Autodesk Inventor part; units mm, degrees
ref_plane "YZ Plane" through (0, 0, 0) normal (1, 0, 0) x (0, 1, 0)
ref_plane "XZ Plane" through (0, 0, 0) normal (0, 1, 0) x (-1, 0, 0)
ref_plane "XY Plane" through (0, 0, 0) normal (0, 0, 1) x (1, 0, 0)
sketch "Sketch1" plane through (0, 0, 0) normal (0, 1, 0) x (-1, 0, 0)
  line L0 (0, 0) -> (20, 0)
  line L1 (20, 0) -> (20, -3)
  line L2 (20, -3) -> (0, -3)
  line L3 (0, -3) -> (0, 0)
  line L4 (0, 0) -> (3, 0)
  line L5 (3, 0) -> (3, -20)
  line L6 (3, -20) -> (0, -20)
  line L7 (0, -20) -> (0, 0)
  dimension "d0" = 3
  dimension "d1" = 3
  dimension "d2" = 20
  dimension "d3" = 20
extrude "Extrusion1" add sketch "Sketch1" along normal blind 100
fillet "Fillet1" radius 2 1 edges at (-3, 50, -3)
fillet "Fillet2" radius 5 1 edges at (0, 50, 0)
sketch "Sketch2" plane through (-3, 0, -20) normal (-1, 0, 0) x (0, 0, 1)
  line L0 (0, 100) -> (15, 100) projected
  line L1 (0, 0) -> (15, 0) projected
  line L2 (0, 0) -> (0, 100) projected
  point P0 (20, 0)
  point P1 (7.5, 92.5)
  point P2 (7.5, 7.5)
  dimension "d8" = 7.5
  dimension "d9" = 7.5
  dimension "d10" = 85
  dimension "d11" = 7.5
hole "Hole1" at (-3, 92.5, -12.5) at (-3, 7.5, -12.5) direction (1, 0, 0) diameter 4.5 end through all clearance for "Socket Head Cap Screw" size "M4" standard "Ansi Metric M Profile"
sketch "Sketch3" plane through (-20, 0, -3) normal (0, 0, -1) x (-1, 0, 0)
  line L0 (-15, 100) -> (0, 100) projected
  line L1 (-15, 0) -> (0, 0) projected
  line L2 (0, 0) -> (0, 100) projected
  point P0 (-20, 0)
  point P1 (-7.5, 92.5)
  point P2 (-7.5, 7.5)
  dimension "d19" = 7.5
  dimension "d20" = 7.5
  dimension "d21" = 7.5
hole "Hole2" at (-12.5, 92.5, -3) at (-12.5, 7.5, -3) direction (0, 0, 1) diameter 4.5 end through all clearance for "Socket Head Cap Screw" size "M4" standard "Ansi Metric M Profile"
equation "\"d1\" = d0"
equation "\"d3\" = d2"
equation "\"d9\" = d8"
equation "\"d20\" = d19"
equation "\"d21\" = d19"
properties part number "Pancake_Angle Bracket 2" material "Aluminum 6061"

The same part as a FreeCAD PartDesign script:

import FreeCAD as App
import Part
import Sketcher

V = App.Vector
Q = App.Units.Quantity


def edges_at(feature, points):
    """Names of the edges that pass closest to the given points."""
    edges = feature.Shape.Edges
    near = lambda p: min(range(len(edges)), key=lambda i: edges[i].distToShape(Part.Vertex(*p))[0])
    return sorted({f"Edge{near(p) + 1}" for p in points})

doc = App.newDocument("Part")
body = doc.addObject("PartDesign::Body", "Body")

# Sketch on XZ plane
sketch1 = body.newObject("Sketcher::SketchObject", "Sketch")
sketch1.AttachmentSupport = (doc.getObject("XZ_Plane"), [""])
sketch1.MapMode = "FlatFace"
sketch1.addGeometry([
    Part.LineSegment(V(0, 0, 0), V(0, -20, 0)),  # 0
    Part.LineSegment(V(0, -20, 0), V(-3, -20, 0)),  # 1
    Part.LineSegment(V(-3, -20, 0), V(-3, -3, 0)),  # 2
    Part.LineSegment(V(-3, -3, 0), V(-20, -3, 0)),  # 3
    Part.LineSegment(V(-20, -3, 0), V(-20, 0, 0)),  # 4
    Part.LineSegment(V(-20, 0, 0), V(0, 0, 0)),  # 5
], False)
sketch1.addConstraint([
    Sketcher.Constraint("Coincident", 0, 2, 1, 1),
    Sketcher.Constraint("Coincident", 1, 2, 2, 1),
    Sketcher.Constraint("Coincident", 2, 2, 3, 1),
    Sketcher.Constraint("Coincident", 3, 2, 4, 1),
    Sketcher.Constraint("Coincident", 4, 2, 5, 1),
    Sketcher.Constraint("Coincident", 5, 2, 0, 1),
    Sketcher.Constraint("Vertical", 0),
    Sketcher.Constraint("Horizontal", 1),
    Sketcher.Constraint("Vertical", 2),
    Sketcher.Constraint("Horizontal", 3),
    Sketcher.Constraint("Vertical", 4),
    Sketcher.Constraint("Horizontal", 5),
    Sketcher.Constraint("Coincident", 5, 2, -1, 1),
    Sketcher.Constraint("Equal", 5, 0),
    Sketcher.Constraint("Equal", 3, 2),
    Sketcher.Constraint("DistanceX", 1, 2, 1, 1, Q("3 mm")),
    Sketcher.Constraint("DistanceX", 5, 1, 5, 2, Q("20 mm")),
])
pad1 = body.newObject("PartDesign::Pad", "Pad")
pad1.Profile = sketch1
pad1.Length = 100
pad1.Reversed = True
doc.recompute()

fillet = body.newObject("PartDesign::Fillet", "Fillet")
fillet.Base = (pad1, edges_at(pad1, [(-3, 50, -3)]))
fillet.Radius = 2
doc.recompute()

fillet2 = body.newObject("PartDesign::Fillet", "Fillet001")
fillet2.Base = (fillet, edges_at(fillet, [(0, 50, 0)]))
fillet2.Radius = 5

# Sketch on YZ plane
sketch2 = body.newObject("Sketcher::SketchObject", "Sketch001")
sketch2.AttachmentSupport = (doc.getObject("YZ_Plane"), [""])
sketch2.MapMode = "FlatFace"
sketch2.AttachmentOffset = App.Placement(V(0, 0, -3), App.Rotation())
sketch2.addGeometry([
    Part.Circle(V(92.5, -12.5, 0), V(0, 0, 1), 2.2),
    Part.Circle(V(7.5, -12.5, 0), V(0, 0, 1), 2.2),
], False)
sketch2.addConstraint([
    Sketcher.Constraint("Equal", 0, 1),
    Sketcher.Constraint("Horizontal", 0, 3, 1, 3),
    Sketcher.Constraint("Diameter", 0, Q("4.5 mm")),
    Sketcher.Constraint("DistanceX", 1, 3, 0, 3, Q("85 mm")),
    Sketcher.Constraint("DistanceX", -1, 1, 0, 3, Q("92.5 mm")),
    Sketcher.Constraint("DistanceY", 0, 3, -1, 1, Q("12.5 mm")),
])
doc.recompute()
hole = body.newObject("PartDesign::Hole", "Hole")
hole.Profile = sketch2
hole.ThreadType = "None"
hole.Diameter = 4.5
hole.DepthType = "ThroughAll"
hole.Reversed = True

# Sketch on XY plane
sketch3 = body.newObject("Sketcher::SketchObject", "Sketch002")
sketch3.AttachmentSupport = (doc.getObject("XY_Plane"), [""])
sketch3.MapMode = "FlatFace"
sketch3.AttachmentOffset = App.Placement(V(0, 0, -3), App.Rotation())
sketch3.addGeometry([
    Part.Circle(V(-12.5, 92.5, 0), V(0, 0, 1), 2.2),
    Part.Circle(V(-12.5, 7.5, 0), V(0, 0, 1), 2.2),
], False)
sketch3.addConstraint([
    Sketcher.Constraint("Equal", 0, 1),
    Sketcher.Constraint("Vertical", 0, 3, 1, 3),
    Sketcher.Constraint("Diameter", 0, Q("4.5 mm")),
    Sketcher.Constraint("DistanceY", 1, 3, 0, 3, Q("85 mm")),
    Sketcher.Constraint("DistanceX", 0, 3, -1, 1, Q("12.5 mm")),
    Sketcher.Constraint("DistanceY", -1, 1, 0, 3, Q("92.5 mm")),
])
doc.recompute()
hole2 = body.newObject("PartDesign::Hole", "Hole001")
hole2.Profile = sketch3
hole2.ThreadType = "None"
hole2.Diameter = 4.5
hole2.DepthType = "ThroughAll"
hole2.Reversed = True

doc.recompute()
